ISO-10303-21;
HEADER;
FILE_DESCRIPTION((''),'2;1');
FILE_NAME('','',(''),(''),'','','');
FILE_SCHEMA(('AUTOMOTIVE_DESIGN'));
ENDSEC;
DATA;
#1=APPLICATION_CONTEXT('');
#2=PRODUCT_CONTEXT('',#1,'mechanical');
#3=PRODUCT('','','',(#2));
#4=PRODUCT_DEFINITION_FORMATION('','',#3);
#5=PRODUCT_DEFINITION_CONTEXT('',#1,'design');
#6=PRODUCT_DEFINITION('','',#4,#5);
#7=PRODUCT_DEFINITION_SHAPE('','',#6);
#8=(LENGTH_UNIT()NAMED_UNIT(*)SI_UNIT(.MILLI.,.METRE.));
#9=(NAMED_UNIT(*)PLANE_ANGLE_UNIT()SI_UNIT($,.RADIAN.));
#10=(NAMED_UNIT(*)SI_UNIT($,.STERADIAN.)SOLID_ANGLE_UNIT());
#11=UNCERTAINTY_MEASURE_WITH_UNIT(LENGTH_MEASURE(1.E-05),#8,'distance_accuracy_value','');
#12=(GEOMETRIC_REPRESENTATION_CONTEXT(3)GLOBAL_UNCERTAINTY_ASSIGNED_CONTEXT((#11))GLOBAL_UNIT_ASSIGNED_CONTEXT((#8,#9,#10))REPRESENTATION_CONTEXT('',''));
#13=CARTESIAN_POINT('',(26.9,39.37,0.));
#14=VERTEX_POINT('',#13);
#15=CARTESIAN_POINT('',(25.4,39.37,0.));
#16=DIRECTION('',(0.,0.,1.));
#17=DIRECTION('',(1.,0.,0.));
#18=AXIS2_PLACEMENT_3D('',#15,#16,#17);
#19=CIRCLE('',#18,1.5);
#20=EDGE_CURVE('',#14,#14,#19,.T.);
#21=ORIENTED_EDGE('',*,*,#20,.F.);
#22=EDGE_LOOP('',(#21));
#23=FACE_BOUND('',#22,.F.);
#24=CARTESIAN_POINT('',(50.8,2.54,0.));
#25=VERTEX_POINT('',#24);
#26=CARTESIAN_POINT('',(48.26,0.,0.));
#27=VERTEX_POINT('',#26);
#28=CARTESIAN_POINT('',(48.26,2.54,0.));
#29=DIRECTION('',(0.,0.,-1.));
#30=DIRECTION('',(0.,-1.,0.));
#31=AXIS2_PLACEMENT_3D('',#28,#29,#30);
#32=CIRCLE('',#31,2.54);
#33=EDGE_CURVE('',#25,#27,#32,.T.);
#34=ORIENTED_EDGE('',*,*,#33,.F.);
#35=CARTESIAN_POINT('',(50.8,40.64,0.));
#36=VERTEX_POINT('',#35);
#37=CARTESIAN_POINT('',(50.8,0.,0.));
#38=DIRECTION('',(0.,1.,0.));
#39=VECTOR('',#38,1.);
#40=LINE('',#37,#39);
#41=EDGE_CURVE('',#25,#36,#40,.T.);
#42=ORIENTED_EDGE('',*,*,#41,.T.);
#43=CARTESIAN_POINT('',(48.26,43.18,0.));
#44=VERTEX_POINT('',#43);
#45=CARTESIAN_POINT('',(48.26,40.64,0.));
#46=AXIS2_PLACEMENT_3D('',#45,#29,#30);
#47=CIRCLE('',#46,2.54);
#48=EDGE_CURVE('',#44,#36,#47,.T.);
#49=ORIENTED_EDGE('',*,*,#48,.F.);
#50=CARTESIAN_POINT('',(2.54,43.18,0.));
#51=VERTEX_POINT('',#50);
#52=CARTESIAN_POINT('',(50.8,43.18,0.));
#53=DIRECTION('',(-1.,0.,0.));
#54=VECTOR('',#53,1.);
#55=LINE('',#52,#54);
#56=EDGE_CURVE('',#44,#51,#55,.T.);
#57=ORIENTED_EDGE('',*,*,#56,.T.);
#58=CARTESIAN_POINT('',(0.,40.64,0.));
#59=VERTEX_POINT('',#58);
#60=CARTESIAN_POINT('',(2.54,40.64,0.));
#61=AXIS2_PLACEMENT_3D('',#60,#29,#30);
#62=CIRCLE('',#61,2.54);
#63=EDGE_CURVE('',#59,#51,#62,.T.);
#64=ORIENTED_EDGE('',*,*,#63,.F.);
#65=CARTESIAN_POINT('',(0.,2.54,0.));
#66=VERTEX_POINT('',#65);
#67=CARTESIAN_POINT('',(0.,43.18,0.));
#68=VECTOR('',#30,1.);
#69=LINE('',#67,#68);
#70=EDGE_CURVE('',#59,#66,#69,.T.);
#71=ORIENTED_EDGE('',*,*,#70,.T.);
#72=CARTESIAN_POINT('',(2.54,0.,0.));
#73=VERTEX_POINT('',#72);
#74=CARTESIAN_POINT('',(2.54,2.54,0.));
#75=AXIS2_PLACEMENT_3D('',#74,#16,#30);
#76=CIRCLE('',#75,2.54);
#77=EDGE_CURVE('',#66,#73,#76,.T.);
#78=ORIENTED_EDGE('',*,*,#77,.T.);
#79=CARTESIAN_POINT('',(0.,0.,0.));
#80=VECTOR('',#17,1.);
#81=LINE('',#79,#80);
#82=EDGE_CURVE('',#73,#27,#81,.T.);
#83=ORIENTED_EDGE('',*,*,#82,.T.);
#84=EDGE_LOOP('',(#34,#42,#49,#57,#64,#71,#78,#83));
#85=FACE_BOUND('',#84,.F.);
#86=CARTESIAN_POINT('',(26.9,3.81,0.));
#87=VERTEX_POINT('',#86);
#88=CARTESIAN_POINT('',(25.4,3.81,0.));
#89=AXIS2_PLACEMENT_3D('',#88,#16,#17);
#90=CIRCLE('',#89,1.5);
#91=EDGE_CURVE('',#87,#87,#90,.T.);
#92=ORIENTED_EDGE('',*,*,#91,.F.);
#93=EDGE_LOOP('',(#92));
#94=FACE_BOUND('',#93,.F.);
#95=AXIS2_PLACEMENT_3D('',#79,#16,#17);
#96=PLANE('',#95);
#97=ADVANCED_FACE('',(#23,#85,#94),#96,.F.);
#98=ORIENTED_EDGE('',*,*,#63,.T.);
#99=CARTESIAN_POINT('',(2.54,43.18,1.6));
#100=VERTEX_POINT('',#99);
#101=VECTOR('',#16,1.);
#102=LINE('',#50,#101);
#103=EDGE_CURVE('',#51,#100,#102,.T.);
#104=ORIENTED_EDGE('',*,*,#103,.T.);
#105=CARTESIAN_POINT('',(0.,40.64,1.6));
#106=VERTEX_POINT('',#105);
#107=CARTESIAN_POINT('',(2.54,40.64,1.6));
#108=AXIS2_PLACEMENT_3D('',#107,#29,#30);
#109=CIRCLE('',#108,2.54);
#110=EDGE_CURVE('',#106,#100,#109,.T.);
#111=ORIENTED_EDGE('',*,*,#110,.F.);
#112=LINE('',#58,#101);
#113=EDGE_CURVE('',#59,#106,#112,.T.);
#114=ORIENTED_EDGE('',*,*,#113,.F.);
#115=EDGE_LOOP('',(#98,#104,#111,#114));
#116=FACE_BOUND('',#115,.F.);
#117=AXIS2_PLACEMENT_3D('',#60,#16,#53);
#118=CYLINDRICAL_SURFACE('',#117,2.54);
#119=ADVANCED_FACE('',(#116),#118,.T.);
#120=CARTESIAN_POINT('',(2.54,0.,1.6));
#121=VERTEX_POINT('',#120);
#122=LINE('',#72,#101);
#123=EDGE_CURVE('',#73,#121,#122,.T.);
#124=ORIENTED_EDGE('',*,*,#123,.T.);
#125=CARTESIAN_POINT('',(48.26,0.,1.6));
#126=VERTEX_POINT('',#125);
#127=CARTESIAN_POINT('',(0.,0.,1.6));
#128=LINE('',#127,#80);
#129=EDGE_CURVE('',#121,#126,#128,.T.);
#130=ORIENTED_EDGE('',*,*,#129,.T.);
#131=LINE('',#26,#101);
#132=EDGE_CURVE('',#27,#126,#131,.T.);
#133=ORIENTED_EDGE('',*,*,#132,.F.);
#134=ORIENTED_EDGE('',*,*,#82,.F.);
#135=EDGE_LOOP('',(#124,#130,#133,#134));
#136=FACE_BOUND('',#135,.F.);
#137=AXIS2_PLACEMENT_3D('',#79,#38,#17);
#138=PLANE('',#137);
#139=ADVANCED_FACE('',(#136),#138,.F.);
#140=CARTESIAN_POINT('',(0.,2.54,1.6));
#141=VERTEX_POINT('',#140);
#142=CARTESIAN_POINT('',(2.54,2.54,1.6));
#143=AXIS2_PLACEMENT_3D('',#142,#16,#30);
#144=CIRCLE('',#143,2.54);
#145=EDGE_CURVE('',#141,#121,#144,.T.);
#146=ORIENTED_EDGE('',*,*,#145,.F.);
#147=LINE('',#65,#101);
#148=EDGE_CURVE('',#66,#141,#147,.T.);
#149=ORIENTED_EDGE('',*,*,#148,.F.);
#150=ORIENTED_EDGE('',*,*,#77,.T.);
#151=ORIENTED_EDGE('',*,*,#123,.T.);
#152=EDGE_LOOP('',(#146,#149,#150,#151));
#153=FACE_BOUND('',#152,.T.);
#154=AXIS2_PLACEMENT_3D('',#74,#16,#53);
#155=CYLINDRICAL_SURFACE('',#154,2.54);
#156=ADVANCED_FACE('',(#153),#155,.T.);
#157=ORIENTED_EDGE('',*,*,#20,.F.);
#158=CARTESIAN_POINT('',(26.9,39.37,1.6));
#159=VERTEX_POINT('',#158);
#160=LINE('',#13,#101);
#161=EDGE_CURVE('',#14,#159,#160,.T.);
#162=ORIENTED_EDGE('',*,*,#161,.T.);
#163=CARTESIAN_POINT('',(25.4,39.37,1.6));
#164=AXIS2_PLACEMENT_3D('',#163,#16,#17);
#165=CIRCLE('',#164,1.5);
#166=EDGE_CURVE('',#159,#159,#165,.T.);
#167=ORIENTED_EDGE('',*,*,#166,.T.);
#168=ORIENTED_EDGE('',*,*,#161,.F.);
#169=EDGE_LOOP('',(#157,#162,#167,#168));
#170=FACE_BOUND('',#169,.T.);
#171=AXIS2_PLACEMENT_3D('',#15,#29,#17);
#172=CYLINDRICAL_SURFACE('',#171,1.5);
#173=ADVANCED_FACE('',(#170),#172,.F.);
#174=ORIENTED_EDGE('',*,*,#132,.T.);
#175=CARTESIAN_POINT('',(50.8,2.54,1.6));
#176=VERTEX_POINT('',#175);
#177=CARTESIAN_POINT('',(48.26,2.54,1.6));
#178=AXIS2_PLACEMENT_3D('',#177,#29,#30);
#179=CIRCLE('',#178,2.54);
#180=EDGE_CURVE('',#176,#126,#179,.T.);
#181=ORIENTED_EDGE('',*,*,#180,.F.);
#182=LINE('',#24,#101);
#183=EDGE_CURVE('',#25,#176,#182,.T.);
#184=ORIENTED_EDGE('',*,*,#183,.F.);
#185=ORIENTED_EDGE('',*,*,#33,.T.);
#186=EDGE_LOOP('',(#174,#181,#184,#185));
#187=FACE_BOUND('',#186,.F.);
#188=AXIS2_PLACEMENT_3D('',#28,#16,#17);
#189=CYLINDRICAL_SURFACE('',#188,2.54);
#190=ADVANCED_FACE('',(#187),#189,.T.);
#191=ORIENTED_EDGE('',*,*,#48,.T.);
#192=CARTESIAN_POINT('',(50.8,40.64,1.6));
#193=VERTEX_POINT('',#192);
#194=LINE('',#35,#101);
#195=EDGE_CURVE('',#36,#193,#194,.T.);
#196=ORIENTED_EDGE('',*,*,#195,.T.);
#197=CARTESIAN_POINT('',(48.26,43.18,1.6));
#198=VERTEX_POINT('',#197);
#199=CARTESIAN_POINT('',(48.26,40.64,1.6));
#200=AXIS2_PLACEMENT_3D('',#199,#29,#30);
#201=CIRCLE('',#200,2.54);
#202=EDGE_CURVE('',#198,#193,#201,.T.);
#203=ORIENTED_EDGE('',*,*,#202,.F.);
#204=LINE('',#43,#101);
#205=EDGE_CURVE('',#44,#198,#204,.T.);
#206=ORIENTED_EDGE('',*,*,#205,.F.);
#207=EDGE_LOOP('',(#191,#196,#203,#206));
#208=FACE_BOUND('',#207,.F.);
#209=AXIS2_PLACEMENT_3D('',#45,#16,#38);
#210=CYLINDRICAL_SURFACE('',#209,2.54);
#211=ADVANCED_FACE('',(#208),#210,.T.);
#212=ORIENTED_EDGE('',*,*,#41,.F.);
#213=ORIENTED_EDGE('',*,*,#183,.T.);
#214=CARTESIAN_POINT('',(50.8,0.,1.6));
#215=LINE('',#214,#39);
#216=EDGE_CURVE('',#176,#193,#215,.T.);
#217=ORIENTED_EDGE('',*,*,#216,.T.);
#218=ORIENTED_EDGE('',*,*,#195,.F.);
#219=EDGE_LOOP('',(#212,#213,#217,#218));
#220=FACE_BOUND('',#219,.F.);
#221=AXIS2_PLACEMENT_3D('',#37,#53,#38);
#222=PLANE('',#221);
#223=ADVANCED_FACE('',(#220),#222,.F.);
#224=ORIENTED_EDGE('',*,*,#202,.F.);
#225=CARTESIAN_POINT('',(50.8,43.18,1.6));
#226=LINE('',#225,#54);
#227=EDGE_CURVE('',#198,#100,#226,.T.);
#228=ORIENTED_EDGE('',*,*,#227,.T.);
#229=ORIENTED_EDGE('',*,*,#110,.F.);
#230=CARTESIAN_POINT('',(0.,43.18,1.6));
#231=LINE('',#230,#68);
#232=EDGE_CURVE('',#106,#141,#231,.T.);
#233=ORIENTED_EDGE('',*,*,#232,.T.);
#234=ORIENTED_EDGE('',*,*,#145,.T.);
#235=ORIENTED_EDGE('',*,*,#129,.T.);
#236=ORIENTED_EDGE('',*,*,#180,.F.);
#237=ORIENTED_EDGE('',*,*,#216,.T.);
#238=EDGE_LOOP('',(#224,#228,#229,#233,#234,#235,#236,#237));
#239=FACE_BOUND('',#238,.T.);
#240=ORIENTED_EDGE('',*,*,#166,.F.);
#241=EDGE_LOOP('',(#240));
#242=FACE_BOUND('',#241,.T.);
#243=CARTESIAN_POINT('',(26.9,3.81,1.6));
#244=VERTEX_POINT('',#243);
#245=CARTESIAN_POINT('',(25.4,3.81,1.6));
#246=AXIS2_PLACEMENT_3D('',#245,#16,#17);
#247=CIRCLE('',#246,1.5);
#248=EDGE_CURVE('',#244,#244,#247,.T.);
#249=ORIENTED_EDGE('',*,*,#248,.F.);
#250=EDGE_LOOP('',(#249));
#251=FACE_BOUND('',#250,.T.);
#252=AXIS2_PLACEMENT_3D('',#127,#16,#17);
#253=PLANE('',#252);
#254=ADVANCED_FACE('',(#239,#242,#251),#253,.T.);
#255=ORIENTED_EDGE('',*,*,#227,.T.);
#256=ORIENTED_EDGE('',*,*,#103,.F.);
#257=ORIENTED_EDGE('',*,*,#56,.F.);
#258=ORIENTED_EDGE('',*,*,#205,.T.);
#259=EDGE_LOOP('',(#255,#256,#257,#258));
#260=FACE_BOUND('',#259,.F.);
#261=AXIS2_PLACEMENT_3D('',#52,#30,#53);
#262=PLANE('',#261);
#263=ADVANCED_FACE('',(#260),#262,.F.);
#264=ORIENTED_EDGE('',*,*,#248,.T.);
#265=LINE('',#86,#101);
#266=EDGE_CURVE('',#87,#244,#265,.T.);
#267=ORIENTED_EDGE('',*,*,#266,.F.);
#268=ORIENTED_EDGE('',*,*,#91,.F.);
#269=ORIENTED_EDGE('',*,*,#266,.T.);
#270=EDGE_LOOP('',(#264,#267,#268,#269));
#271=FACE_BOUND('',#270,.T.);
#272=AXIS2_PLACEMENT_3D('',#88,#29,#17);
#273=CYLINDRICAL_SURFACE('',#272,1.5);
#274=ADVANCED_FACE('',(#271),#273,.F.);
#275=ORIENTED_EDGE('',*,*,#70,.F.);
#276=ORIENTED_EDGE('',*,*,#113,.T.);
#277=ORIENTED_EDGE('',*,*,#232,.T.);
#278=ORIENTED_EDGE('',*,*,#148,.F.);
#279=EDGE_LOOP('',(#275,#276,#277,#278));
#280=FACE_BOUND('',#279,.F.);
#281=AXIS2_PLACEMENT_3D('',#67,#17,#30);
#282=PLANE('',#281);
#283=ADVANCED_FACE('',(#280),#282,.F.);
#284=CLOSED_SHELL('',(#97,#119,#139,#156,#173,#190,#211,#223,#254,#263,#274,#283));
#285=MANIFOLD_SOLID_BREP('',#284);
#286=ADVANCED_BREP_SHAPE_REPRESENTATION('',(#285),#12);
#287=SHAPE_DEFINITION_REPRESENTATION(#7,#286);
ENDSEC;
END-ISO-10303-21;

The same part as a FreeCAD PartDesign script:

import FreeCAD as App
import Part
import Sketcher
Q = App.Units.Quantity


def edges_at(feature, points):
    """Names of the edges that pass closest to the given points."""
    edges = feature.Shape.Edges
    near = lambda p: min(range(len(edges)), key=lambda i: edges[i].distToShape(Part.Vertex(*p))[0])
    return sorted({f"Edge{near(p) + 1}" for p in points})


def add_polygon(sketch, points):
    """Adds a closed chain of lines whose ends are joined by coincident constraints."""
    first, n = sketch.GeometryCount, len(points)
    for a, b in zip(points, points[1:] + points[:1]):
        sketch.addGeometry(Part.LineSegment(App.Vector(*a, 0), App.Vector(*b, 0)), False)
    for i in range(n):
        sketch.addConstraint(Sketcher.Constraint("Coincident", first + i, 2, first + (i + 1) % n, 1))

doc = App.newDocument("Part")
params = doc.addObject("Spreadsheet::Sheet", "Params")
for row, (alias, value) in enumerate([
    ("sketch1_width", "2 in"),
    ("sketch1_height", "1.7 in"),
    ("pad1_length", "0.0629921 in"),
    ("fillet_radius", "0.1 in"),
], start=1):
    params.set(f"A{row}", alias)
    params.set(f"B{row}", "=" + value)
    params.setAlias(f"B{row}", alias)

body = doc.addObject("PartDesign::Body", "Body")

sketch1 = body.newObject("Sketcher::SketchObject", "Sketch")
sketch1.AttachmentSupport = (doc.getObject("XY_Plane"), [""])
sketch1.MapMode = "FlatFace"
add_polygon(sketch1, [(0, 43.2), (0, 0), (50.8, 0), (50.8, 43.2)])
sketch1.addGeometry(Part.Circle(App.Vector(25.4, 3.8, 0), App.Vector(0, 0, 1), 1.5), False)
sketch1.addGeometry(Part.Circle(App.Vector(25.4, 39.4, 0), App.Vector(0, 0, 1), 1.5), False)
sketch1.addConstraint(Sketcher.Constraint("Vertical", 0))
sketch1.addConstraint(Sketcher.Constraint("Horizontal", 1))
sketch1.addConstraint(Sketcher.Constraint("Vertical", 2))
sketch1.addConstraint(Sketcher.Constraint("Horizontal", 3))
sketch1.addConstraint(Sketcher.Constraint("Coincident", 0, 2, -1, 1))
sketch1.addConstraint(Sketcher.Constraint("Equal", 4, 5))
sketch1.addConstraint(Sketcher.Constraint("Vertical", 4, 3, 5, 3))
sketch1.addConstraint(Sketcher.Constraint("DistanceX", 1, 1, 1, 2, Q("2 in")))
sketch1.addConstraint(Sketcher.Constraint("DistanceY", 0, 2, 0, 1, Q("1.7 in")))
sketch1.addConstraint(Sketcher.Constraint("Diameter", 4, Q("0.1181 in")))
sketch1.addConstraint(Sketcher.Constraint("DistanceY", 4, 3, 5, 3, Q("1.4 in")))
sketch1.addConstraint(Sketcher.Constraint("DistanceX", -1, 1, 4, 3, Q("1 in")))
sketch1.addConstraint(Sketcher.Constraint("DistanceY", -1, 1, 4, 3, Q("0.15 in")))
sketch1.setExpression("Constraints[11]", "Params.sketch1_width")
sketch1.setExpression("Constraints[12]", "Params.sketch1_height")
pad1 = body.newObject("PartDesign::Pad", "Pad")
pad1.Profile = sketch1
pad1.setExpression("Length", "Params.pad1_length")
doc.recompute()

fillet = body.newObject("PartDesign::Fillet", "Fillet")
fillet.Base = (pad1, edges_at(pad1, [
    (50.8, 0, 0.8),
    (50.8, 43.18, 0.8),
    (0, 0, 0.8),
    (0, 43.18, 0.8),
]))
fillet.setExpression("Radius", "Params.fillet_radius")

doc.recompute()
